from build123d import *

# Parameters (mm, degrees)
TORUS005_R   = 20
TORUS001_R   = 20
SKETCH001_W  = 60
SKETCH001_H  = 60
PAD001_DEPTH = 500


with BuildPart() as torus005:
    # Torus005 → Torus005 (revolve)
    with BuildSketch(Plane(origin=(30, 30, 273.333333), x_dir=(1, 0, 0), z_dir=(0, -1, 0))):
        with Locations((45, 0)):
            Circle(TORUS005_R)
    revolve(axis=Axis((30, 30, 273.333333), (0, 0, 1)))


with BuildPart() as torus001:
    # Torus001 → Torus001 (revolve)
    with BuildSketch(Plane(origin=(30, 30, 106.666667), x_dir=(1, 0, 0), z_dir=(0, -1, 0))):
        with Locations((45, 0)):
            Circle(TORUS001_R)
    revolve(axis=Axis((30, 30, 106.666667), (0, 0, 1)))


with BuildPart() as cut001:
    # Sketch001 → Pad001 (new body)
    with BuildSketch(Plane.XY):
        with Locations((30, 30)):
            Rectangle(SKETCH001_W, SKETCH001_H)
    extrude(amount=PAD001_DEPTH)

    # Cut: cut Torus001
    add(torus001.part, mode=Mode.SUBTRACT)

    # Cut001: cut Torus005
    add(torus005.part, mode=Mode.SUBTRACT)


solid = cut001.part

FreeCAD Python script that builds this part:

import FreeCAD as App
import Part
import Sketcher
from FreeCAD import Vector


def add_polygon(sketch, points):
    """Adds a closed chain of lines whose ends are joined by coincident constraints."""
    first, n = sketch.GeometryCount, len(points)
    for a, b in zip(points, points[1:] + points[:1]):
        sketch.addGeometry(Part.LineSegment(App.Vector(*a, 0), App.Vector(*b, 0)), False)
    for i in range(n):
        sketch.addConstraint(Sketcher.Constraint("Coincident", first + i, 2, first + (i + 1) % n, 1))

doc = App.newDocument("Part")
params = doc.addObject("Spreadsheet::Sheet", "Params")
for row, (alias, value) in enumerate([
    ("sketch1_diameter", "40 mm"),
    ("sketch1_height", "10 mm"),
    ("revolution_angle", "360 deg"),
    ("sketch2_diameter", "40 mm"),
    ("sketch2_height", "10 mm"),
    ("revolution2_angle", "360 deg"),
    ("sketch3_width", "60 mm"),
    ("pad1_length", "500 mm"),
], start=1):
    params.set(f"A{row}", alias)
    params.set(f"B{row}", "=" + value)
    params.setAlias(f"B{row}", alias)

body = doc.addObject("PartDesign::Body", "Body")

sketch1 = doc.addObject("Sketcher::SketchObject", "Sketch")
body.addObject(sketch1)
sketch1.AttachmentSupport = (doc.XZ_Plane, [""])
sketch1.MapMode = "FlatFace"
sketch1.AttachmentOffset = App.Placement(Vector(0, 0, -30), App.Rotation())
sketch1.addGeometry(Part.Circle(Vector(75, 273, 0), Vector(0, 0, 1), 20), False)
sketch1.addGeometry(Part.LineSegment(Vector(30, 273, 0), Vector(30, 283, 0)), True)
sketch1.addConstraint([
    Sketcher.Constraint("Vertical", 1),
    Sketcher.Constraint("Horizontal", 0, 3, 1, 1),
    Sketcher.Constraint("Diameter", 0, 40.0),
    Sketcher.Constraint("DistanceY", 1, 1, 1, 2, 10.0),
    Sketcher.Constraint("DistanceX", -1, 1, 0, 3, 75.0),
    Sketcher.Constraint("DistanceX", -1, 1, 1, 1, 30.0),
    Sketcher.Constraint("DistanceY", -1, 1, 0, 3, 273.333333),
])
sketch1.setExpression("Constraints[2]", "Params.sketch1_diameter")
sketch1.setExpression("Constraints[3]", "Params.sketch1_height")
revolution = doc.addObject("PartDesign::Revolution", "Revolution")
body.addObject(revolution)
revolution.Profile = sketch1
revolution.ReferenceAxis = (sketch1, ["Axis0"])
revolution.setExpression("Angle", "Params.revolution_angle")
body2 = doc.addObject("PartDesign::Body", "Body001")

sketch2 = doc.addObject("Sketcher::SketchObject", "Sketch001")
body2.addObject(sketch2)
sketch2.AttachmentSupport = (doc.getObject("XZ_Plane001"), [""])
sketch2.MapMode = "FlatFace"
sketch2.AttachmentOffset = App.Placement(Vector(0, 0, -30), App.Rotation())
sketch2.addGeometry(Part.Circle(Vector(75, 107, 0), Vector(0, 0, 1), 20), False)
sketch2.addGeometry(Part.LineSegment(Vector(30, 107, 0), Vector(30, 117, 0)), True)
sketch2.addConstraint([
    Sketcher.Constraint("Vertical", 1),
    Sketcher.Constraint("Horizontal", 0, 3, 1, 1),
    Sketcher.Constraint("Diameter", 0, 40.0),
    Sketcher.Constraint("DistanceY", 1, 1, 1, 2, 10.0),
    Sketcher.Constraint("DistanceX", -1, 1, 0, 3, 75.0),
    Sketcher.Constraint("DistanceX", -1, 1, 1, 1, 30.0),
    Sketcher.Constraint("DistanceY", -1, 1, 0, 3, 106.666667),
])
sketch2.setExpression("Constraints[2]", "Params.sketch2_diameter")
sketch2.setExpression("Constraints[3]", "Params.sketch2_height")
revolution2 = doc.addObject("PartDesign::Revolution", "Revolution001")
body2.addObject(revolution2)
revolution2.Profile = sketch2
revolution2.ReferenceAxis = (sketch2, ["Axis0"])
revolution2.setExpression("Angle", "Params.revolution2_angle")
body3 = doc.addObject("PartDesign::Body", "Body002")

sketch3 = doc.addObject("Sketcher::SketchObject", "Sketch002")
body3.addObject(sketch3)
sketch3.AttachmentSupport = (doc.getObject("XY_Plane002"), [""])
sketch3.MapMode = "FlatFace"
add_polygon(sketch3, [(0, 60), (0, 0), (60, 0), (60, 60)])
sketch3.addConstraint([
    Sketcher.Constraint("Vertical", 0),
    Sketcher.Constraint("Horizontal", 1),
    Sketcher.Constraint("Vertical", 2),
    Sketcher.Constraint("Horizontal", 3),
    Sketcher.Constraint("Coincident", 0, 2, -1, 1),
    Sketcher.Constraint("Equal", 3, 0),
    Sketcher.Constraint("DistanceX", 1, 1, 1, 2, 60.0),
])
sketch3.setExpression("Constraints[10]", "Params.sketch3_width")
pad1 = doc.addObject("PartDesign::Pad", "Pad")
body3.addObject(pad1)
pad1.Profile = sketch3
pad1.setExpression("Length", "Params.pad1_length")
doc.recompute()

boolean = doc.addObject("PartDesign::Boolean", "Boolean")
body3.addObject(boolean)
boolean.Type = "Cut"
boolean.addObjects([body2])
doc.recompute()

boolean2 = doc.addObject("PartDesign::Boolean", "Boolean001")
body3.addObject(boolean2)
boolean2.Type = "Cut"
boolean2.addObjects([body])

doc.recompute()
